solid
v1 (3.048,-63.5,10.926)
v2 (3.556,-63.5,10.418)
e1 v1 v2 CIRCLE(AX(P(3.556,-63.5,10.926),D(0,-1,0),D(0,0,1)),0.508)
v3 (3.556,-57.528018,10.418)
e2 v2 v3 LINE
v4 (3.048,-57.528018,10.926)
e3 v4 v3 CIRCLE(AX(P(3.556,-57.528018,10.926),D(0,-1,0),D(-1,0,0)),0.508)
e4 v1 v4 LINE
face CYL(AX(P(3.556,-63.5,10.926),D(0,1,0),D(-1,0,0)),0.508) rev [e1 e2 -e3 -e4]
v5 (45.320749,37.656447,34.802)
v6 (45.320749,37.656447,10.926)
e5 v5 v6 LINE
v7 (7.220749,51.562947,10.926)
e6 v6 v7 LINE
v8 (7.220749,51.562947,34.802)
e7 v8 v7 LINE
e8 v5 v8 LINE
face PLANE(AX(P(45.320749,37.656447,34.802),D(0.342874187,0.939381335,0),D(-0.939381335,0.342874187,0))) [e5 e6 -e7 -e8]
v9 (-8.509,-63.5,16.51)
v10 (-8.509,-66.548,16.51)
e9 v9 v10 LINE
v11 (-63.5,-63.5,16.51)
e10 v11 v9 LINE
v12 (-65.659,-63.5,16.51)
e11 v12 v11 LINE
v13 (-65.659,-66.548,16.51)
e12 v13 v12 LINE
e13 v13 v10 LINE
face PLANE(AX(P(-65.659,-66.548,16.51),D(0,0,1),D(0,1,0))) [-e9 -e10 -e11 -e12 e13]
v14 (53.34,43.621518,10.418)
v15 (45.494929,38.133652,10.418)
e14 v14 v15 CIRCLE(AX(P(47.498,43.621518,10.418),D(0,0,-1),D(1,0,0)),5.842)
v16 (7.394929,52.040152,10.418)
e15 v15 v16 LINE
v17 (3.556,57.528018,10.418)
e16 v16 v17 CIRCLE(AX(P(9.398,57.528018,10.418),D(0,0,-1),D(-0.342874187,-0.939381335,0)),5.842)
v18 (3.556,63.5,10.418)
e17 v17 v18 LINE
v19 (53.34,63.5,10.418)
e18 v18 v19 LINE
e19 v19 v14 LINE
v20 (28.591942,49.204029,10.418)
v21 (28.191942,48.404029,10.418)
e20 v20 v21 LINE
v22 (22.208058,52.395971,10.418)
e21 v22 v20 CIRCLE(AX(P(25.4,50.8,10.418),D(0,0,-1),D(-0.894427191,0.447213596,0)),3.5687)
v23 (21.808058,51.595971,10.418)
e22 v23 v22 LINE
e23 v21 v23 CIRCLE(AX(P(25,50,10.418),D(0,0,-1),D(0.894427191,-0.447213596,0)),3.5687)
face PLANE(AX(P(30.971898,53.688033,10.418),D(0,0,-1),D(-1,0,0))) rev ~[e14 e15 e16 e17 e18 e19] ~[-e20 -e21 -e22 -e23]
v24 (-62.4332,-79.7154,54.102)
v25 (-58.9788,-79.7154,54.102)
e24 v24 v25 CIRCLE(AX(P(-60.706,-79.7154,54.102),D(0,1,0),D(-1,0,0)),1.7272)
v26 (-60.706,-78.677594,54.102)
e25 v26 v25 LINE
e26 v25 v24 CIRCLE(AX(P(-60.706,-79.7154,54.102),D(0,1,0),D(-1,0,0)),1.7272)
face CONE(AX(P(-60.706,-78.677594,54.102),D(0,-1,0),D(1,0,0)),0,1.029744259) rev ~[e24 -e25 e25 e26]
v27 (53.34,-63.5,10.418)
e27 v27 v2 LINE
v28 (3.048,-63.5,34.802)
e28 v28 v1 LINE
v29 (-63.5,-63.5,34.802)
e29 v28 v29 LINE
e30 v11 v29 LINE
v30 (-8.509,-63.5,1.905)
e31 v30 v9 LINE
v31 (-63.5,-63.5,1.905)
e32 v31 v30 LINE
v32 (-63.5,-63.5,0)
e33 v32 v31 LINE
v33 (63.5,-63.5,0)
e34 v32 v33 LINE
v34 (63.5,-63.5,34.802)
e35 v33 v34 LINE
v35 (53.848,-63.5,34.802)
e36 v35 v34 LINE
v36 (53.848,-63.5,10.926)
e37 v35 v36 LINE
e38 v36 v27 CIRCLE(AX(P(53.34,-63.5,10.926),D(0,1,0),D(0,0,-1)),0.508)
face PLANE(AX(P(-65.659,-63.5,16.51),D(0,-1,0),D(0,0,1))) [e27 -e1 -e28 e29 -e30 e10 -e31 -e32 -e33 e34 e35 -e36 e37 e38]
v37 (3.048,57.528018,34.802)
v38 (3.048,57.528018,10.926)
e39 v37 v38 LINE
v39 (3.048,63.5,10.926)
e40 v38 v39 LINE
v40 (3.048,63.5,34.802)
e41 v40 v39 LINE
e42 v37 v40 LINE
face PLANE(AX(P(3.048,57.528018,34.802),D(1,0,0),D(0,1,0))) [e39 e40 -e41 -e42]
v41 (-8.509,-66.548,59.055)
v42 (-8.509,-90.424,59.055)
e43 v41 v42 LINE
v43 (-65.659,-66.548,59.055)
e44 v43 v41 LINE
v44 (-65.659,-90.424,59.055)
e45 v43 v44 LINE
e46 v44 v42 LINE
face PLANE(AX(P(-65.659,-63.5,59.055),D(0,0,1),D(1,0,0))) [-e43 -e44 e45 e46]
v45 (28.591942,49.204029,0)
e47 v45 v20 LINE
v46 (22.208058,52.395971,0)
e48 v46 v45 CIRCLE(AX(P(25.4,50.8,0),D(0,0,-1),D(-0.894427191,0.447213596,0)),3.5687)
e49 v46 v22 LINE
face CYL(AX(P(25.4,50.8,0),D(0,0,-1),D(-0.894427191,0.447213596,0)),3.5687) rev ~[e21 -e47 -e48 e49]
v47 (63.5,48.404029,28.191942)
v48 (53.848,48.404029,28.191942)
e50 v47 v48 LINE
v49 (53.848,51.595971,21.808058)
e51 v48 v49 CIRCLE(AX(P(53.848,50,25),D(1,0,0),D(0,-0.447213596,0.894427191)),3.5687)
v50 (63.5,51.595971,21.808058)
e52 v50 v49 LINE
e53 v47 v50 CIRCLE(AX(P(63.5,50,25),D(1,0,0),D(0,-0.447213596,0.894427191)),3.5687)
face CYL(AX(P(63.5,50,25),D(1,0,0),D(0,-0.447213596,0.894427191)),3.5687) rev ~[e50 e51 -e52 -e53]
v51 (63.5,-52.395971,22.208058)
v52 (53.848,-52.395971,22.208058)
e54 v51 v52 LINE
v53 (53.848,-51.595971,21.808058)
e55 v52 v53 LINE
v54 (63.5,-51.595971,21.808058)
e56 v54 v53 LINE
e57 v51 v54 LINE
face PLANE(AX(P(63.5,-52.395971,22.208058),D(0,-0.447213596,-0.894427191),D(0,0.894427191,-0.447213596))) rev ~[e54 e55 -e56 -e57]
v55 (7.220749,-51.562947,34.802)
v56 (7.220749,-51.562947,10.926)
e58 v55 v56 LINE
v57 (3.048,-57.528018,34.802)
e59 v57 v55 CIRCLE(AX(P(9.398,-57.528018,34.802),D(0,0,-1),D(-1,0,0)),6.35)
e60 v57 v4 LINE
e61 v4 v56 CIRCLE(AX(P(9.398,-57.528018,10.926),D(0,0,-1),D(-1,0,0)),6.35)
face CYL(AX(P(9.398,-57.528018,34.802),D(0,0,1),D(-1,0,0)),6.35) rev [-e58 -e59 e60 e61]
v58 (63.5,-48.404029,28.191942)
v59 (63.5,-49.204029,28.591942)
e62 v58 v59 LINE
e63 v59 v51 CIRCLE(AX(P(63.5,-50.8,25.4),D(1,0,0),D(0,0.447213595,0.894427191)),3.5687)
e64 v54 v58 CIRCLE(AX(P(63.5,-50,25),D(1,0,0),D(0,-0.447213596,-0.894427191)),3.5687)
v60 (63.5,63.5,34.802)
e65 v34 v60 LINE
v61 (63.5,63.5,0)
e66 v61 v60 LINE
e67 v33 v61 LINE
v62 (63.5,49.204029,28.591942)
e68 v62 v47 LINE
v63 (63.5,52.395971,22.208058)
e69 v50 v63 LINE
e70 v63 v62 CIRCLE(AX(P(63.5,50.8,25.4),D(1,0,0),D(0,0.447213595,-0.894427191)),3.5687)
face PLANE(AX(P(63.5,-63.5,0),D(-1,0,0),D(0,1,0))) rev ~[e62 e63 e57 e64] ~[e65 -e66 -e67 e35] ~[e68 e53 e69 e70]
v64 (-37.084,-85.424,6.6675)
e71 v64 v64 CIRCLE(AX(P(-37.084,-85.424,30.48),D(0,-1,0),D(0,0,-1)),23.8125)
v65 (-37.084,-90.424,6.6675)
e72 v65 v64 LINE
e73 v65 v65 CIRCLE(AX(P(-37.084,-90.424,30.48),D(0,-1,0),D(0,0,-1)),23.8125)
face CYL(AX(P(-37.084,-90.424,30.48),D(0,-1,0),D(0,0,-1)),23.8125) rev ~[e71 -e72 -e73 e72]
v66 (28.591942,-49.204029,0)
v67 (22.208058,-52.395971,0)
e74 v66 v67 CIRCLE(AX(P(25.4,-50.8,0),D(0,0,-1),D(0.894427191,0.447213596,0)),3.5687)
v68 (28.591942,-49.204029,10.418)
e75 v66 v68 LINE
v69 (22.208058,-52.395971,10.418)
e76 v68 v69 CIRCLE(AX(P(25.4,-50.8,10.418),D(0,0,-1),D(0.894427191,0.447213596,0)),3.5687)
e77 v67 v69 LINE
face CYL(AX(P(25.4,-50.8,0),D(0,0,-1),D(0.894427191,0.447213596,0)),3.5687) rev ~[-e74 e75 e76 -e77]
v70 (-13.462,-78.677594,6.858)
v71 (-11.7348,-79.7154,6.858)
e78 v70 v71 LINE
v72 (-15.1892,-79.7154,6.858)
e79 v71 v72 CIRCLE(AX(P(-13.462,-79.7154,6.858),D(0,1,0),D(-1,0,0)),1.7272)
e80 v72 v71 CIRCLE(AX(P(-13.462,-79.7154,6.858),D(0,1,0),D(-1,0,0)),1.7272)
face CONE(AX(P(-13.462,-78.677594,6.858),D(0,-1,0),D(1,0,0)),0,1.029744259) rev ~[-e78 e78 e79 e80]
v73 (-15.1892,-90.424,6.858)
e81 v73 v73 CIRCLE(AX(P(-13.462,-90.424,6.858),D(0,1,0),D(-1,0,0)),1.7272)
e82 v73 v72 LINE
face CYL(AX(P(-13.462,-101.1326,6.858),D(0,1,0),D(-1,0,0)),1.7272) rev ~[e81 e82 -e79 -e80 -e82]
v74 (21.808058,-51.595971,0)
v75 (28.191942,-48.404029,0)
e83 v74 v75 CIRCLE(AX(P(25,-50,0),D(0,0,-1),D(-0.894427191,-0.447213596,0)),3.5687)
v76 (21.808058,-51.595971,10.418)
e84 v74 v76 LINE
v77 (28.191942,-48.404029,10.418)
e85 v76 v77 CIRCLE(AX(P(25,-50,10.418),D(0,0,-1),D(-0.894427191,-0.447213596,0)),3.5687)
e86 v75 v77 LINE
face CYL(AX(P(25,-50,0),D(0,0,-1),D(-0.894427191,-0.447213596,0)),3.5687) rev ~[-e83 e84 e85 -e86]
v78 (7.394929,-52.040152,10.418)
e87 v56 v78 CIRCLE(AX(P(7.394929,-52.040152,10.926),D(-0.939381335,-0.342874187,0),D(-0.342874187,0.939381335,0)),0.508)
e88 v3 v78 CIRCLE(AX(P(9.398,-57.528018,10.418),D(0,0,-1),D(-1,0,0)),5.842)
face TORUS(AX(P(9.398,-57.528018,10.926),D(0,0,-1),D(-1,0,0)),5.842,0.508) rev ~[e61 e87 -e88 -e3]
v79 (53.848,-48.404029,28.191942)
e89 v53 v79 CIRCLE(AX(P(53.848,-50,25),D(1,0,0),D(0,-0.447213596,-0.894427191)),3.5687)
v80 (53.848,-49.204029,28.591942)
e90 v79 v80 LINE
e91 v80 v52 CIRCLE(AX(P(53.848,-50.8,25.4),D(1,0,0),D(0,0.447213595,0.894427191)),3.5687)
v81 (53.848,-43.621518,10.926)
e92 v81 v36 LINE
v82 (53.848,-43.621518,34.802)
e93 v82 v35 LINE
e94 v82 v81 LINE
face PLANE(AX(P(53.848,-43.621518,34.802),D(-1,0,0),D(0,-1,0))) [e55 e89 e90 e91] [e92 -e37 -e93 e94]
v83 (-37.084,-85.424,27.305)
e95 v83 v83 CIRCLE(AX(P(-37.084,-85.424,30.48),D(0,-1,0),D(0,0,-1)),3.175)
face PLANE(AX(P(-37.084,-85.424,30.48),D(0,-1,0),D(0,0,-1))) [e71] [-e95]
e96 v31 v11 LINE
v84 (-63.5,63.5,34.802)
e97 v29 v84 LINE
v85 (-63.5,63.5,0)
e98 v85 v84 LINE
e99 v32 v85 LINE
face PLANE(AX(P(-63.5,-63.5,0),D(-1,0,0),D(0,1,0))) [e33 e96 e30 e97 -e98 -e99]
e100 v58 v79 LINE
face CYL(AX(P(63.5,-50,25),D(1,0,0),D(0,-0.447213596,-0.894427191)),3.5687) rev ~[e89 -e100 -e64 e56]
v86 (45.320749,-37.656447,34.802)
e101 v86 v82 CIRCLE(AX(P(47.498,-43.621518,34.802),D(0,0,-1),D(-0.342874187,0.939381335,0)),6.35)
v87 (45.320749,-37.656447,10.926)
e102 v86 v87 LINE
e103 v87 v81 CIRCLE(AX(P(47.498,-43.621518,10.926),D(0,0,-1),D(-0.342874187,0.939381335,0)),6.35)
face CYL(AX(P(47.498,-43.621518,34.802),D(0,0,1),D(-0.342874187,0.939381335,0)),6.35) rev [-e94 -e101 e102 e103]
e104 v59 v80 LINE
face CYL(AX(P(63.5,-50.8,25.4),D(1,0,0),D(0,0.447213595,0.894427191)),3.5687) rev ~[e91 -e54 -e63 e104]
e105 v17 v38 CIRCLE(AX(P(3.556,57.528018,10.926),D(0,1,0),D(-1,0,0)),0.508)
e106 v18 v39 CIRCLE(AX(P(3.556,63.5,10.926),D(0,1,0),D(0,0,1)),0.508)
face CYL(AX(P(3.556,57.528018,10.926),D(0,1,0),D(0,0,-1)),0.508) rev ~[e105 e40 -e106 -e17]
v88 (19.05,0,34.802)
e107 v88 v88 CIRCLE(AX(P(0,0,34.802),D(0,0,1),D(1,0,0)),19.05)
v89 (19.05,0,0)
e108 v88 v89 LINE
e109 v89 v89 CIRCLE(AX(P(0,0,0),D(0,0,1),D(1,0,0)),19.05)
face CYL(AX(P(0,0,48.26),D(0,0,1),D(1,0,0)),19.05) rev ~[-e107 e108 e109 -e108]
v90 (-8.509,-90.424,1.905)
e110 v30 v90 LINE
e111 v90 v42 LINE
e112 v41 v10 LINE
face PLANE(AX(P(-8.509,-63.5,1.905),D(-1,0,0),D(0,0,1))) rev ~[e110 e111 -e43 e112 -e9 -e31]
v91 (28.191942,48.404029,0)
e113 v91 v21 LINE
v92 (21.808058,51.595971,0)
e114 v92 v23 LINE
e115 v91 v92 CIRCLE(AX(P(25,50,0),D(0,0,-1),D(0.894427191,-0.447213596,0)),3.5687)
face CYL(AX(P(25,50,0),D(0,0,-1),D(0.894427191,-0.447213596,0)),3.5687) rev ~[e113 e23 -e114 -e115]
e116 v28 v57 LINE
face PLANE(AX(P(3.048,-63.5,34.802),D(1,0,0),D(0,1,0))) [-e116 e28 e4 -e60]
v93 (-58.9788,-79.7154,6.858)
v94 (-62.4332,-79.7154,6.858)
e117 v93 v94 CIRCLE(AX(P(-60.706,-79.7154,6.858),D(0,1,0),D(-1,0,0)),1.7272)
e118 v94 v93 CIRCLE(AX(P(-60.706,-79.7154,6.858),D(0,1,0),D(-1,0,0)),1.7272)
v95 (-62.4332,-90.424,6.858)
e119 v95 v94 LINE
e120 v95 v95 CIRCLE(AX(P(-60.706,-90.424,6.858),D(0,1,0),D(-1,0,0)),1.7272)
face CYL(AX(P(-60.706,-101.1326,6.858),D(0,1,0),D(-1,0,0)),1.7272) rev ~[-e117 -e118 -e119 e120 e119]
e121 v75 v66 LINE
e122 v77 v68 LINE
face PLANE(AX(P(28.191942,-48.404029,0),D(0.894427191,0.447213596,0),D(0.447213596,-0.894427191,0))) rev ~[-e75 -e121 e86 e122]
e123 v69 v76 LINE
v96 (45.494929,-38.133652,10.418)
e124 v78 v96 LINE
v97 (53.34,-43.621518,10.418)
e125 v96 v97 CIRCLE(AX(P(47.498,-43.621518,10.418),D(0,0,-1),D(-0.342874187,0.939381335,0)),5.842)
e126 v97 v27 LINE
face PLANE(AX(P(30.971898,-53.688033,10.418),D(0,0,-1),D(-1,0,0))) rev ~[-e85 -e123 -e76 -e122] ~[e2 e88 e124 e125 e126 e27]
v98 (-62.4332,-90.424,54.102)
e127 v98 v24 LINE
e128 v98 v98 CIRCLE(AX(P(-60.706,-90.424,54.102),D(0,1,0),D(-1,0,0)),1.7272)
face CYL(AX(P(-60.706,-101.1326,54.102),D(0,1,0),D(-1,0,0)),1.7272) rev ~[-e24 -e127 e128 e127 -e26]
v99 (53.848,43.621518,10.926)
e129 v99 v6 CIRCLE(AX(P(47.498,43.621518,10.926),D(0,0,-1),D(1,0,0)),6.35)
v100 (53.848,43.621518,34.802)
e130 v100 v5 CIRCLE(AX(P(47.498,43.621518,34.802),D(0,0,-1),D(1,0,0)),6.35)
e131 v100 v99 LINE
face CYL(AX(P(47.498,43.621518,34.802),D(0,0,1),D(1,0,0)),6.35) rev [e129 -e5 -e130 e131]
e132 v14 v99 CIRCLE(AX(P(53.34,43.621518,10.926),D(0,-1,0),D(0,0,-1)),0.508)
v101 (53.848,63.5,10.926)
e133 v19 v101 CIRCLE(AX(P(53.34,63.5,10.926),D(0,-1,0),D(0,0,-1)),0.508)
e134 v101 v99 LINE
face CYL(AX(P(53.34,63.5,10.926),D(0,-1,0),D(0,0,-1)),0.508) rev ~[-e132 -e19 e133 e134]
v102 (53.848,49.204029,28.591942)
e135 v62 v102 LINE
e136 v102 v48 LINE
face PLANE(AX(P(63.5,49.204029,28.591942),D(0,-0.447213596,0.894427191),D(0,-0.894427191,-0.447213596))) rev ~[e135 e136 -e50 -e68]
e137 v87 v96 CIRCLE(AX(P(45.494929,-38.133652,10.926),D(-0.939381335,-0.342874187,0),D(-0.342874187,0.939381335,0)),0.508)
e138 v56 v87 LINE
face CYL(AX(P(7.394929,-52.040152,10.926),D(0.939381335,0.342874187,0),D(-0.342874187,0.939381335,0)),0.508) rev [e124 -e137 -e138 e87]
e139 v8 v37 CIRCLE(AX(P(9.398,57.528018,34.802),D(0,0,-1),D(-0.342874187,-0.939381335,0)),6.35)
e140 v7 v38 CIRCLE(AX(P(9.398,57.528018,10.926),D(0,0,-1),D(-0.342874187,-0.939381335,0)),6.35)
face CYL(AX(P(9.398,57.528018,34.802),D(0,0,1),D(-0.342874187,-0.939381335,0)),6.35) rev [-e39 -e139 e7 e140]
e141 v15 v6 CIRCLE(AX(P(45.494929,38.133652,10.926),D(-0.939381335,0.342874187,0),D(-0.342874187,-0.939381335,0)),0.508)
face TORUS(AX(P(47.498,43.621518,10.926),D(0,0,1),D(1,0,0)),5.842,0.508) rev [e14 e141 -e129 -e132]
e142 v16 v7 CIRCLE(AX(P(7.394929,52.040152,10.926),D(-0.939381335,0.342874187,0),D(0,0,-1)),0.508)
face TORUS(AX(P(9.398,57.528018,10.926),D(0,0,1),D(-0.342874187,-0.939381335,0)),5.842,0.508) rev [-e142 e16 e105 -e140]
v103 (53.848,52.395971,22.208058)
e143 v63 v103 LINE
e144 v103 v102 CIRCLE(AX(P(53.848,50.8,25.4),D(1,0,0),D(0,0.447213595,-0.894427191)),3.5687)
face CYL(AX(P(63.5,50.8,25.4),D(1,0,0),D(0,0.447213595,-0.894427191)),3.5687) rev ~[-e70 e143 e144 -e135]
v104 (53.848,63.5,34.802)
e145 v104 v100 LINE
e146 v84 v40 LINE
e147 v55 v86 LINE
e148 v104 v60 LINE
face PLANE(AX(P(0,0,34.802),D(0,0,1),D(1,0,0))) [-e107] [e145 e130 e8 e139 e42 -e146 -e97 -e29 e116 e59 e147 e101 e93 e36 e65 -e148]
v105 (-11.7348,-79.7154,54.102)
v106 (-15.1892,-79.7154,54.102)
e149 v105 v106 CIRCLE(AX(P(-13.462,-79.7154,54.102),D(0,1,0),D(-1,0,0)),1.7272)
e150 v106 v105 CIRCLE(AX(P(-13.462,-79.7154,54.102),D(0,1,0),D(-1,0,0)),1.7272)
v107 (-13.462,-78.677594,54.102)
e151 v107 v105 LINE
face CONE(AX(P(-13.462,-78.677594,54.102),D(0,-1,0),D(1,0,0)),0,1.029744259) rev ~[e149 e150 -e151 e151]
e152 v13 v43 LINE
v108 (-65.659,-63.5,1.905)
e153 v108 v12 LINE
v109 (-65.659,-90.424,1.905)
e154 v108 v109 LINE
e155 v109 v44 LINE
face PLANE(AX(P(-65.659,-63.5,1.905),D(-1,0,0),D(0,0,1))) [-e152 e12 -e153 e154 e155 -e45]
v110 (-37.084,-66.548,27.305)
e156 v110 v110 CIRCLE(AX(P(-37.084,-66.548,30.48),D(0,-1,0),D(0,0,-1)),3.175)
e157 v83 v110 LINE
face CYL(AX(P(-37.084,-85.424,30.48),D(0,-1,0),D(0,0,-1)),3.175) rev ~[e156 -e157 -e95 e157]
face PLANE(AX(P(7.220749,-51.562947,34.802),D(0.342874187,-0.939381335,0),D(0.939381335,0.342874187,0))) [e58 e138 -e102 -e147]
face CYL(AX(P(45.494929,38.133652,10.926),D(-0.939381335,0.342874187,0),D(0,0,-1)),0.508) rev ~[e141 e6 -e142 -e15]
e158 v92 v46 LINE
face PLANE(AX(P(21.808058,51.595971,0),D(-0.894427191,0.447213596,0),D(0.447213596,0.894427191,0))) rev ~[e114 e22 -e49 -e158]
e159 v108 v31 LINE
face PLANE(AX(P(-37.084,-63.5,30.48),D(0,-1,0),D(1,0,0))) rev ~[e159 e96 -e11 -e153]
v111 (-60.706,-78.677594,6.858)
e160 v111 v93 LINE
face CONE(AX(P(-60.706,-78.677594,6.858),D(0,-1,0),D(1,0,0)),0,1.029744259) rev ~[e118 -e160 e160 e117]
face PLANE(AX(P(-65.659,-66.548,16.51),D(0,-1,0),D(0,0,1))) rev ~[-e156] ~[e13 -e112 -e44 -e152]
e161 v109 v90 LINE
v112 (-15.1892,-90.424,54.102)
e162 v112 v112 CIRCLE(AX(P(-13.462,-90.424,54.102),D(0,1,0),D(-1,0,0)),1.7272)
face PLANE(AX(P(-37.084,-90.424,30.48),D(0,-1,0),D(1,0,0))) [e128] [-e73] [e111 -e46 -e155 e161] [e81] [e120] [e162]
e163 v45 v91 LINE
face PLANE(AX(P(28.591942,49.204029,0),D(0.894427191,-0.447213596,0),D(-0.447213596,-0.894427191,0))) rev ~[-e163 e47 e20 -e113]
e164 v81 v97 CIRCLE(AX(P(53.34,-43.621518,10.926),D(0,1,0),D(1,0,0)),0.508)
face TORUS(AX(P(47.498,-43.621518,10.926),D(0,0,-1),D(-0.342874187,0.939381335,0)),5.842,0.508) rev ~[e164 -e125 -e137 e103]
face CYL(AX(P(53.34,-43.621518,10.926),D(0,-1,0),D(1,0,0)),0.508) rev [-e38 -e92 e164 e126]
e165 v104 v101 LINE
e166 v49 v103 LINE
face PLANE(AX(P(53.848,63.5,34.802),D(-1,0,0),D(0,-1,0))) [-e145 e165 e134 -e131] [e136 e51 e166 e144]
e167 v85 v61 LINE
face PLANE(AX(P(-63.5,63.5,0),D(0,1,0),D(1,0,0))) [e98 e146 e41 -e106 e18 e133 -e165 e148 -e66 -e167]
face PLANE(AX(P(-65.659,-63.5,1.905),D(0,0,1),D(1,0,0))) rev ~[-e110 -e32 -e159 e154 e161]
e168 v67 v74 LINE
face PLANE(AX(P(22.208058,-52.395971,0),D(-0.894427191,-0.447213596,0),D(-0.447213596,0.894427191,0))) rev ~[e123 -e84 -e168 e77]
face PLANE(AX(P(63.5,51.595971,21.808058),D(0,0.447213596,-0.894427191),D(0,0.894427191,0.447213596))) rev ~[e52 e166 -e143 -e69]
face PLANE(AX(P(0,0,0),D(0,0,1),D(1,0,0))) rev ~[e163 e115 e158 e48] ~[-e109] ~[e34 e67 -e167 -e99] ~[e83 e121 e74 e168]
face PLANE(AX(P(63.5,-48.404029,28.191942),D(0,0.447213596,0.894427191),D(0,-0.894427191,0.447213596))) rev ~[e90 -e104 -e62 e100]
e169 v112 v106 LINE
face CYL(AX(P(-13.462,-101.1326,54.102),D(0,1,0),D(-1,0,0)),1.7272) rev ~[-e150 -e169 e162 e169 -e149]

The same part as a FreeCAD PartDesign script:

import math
import FreeCAD as App
import Part
import Sketcher
Q = App.Units.Quantity


def edges_at(feature, points):
    """Names of the edges that pass closest to the given points."""
    edges = feature.Shape.Edges
    near = lambda p: min(range(len(edges)), key=lambda i: edges[i].distToShape(Part.Vertex(*p))[0])
    return sorted({f"Edge{near(p) + 1}" for p in points})

doc = App.newDocument("Part")
body = doc.addObject("PartDesign::Body", "Body")

sketch1 = doc.addObject("Sketcher::SketchObject", "Sketch")
body.addObject(sketch1)
sketch1.AttachmentSupport = (doc.XY_Plane, [""])
sketch1.MapMode = "FlatFace"
sketch1.addGeometry(Part.LineSegment(App.Vector(-63.5, 63.5, 0), App.Vector(-63.5, -63.5, 0)), False)
sketch1.addGeometry(Part.LineSegment(App.Vector(-63.5, -63.5, 0), App.Vector(63.5, -63.5, 0)), False)
sketch1.addGeometry(Part.LineSegment(App.Vector(63.5, -63.5, 0), App.Vector(63.5, 63.5, 0)), False)
sketch1.addGeometry(Part.LineSegment(App.Vector(63.5, 63.5, 0), App.Vector(-63.5, 63.5, 0)), False)
sketch1.addConstraint(Sketcher.Constraint("Coincident", 0, 2, 1, 1))
sketch1.addConstraint(Sketcher.Constraint("Coincident", 1, 2, 2, 1))
sketch1.addConstraint(Sketcher.Constraint("Coincident", 2, 2, 3, 1))
sketch1.addConstraint(Sketcher.Constraint("Coincident", 3, 2, 0, 1))
sketch1.addConstraint(Sketcher.Constraint("Vertical", 0))
sketch1.addConstraint(Sketcher.Constraint("Horizontal", 1))
sketch1.addConstraint(Sketcher.Constraint("Vertical", 2))
sketch1.addConstraint(Sketcher.Constraint("Horizontal", 3))
sketch1.addConstraint(Sketcher.Constraint("Symmetric", 0, 2, 2, 2, -1, 1))
sketch1.addConstraint(Sketcher.Constraint("Equal", 3, 0))
sketch1.addConstraint(Sketcher.Constraint("DistanceX", 1, 1, 1, 2, Q("5 in")))
pad1 = doc.addObject("PartDesign::Pad", "Pad")
body.addObject(pad1)
pad1.Profile = sketch1
pad1.Length = 39.5

sketch2 = doc.addObject("Sketcher::SketchObject", "Sketch001")
body.addObject(sketch2)
sketch2.AttachmentSupport = (doc.XY_Plane, [""])
sketch2.MapMode = "FlatFace"
sketch2.AttachmentOffset = App.Placement(App.Vector(0, 0, 39.5), App.Rotation())
sketch2.addGeometry(Part.LineSegment(App.Vector(-82.89, 82.89, 0), App.Vector(-82.89, -82.89, 0)), False)
sketch2.addGeometry(Part.LineSegment(App.Vector(-82.89, -82.89, 0), App.Vector(82.89, -82.89, 0)), False)
sketch2.addGeometry(Part.LineSegment(App.Vector(82.89, -82.89, 0), App.Vector(82.89, 82.89, 0)), False)
sketch2.addGeometry(Part.LineSegment(App.Vector(82.89, 82.89, 0), App.Vector(-82.89, 82.89, 0)), False)
sketch2.addGeometry(Part.Circle(App.Vector(0, 0, 0), App.Vector(0, 0, 1), 45.974), False)
sketch2.addConstraint(Sketcher.Constraint("Coincident", 0, 2, 1, 1))
sketch2.addConstraint(Sketcher.Constraint("Coincident", 1, 2, 2, 1))
sketch2.addConstraint(Sketcher.Constraint("Coincident", 2, 2, 3, 1))
sketch2.addConstraint(Sketcher.Constraint("Coincident", 3, 2, 0, 1))
sketch2.addConstraint(Sketcher.Constraint("Vertical", 0))
sketch2.addConstraint(Sketcher.Constraint("Horizontal", 1))
sketch2.addConstraint(Sketcher.Constraint("Vertical", 2))
sketch2.addConstraint(Sketcher.Constraint("Horizontal", 3))
sketch2.addConstraint(Sketcher.Constraint("Coincident", 4, 3, -1, 1))
sketch2.addConstraint(Sketcher.Constraint("Symmetric", 0, 2, 2, 2, -1, 1))
sketch2.addConstraint(Sketcher.Constraint("Equal", 3, 0))
sketch2.addConstraint(Sketcher.Constraint("Diameter", 4, Q("3.62 in")))
sketch2.addConstraint(Sketcher.Constraint("DistanceX", 1, 1, 1, 2, 165.78))
pocket1 = doc.addObject("PartDesign::Pocket", "Pocket")
body.addObject(pocket1)
pocket1.Profile = sketch2
pocket1.Length = 4.698

sketch3 = doc.addObject("Sketcher::SketchObject", "Sketch002")
body.addObject(sketch3)
sketch3.AttachmentSupport = (doc.XY_Plane, [""])
sketch3.MapMode = "FlatFace"
sketch3.AttachmentOffset = App.Placement(App.Vector(0, 0, 34.802), App.Rotation())
sketch3.addGeometry(Part.LineSegment(App.Vector(3.048, -57.528018, 0), App.Vector(3.048, -63.5, 0)), False)
sketch3.addGeometry(Part.LineSegment(App.Vector(3.048, -63.5, 0), App.Vector(53.848, -63.5, 0)), False)
sketch3.addGeometry(Part.LineSegment(App.Vector(53.848, -63.5, 0), App.Vector(53.848, -43.621518, 0)), False)
sketch3.addGeometry(Part.ArcOfCircle(Part.Circle(App.Vector(47.498, -43.621518, 0), App.Vector(0, 0, 1), 6.35), math.radians(0), math.radians(110.052082)), False)
sketch3.addGeometry(Part.LineSegment(App.Vector(45.320749, -37.656447, 0), App.Vector(7.220749, -51.562947, 0)), False)
sketch3.addGeometry(Part.ArcOfCircle(Part.Circle(App.Vector(9.398, -57.528018, 0), App.Vector(0, 0, 1), 6.35), math.radians(110.052082), math.radians(180)), False)
sketch3.addGeometry(Part.LineSegment(App.Vector(53.848, 63.5, 0), App.Vector(3.048, 63.5, 0)), False)
sketch3.addGeometry(Part.LineSegment(App.Vector(3.048, 63.5, 0), App.Vector(3.048, 57.528018, 0)), False)
sketch3.addGeometry(Part.ArcOfCircle(Part.Circle(App.Vector(9.398, 57.528018, 0), App.Vector(0, 0, 1), 6.35), math.radians(180), math.radians(249.947918)), False)
sketch3.addGeometry(Part.LineSegment(App.Vector(7.220749, 51.562947, 0), App.Vector(45.320749, 37.656447, 0)), False)
sketch3.addGeometry(Part.ArcOfCircle(Part.Circle(App.Vector(47.498, 43.621518, 0), App.Vector(0, 0, 1), 6.35), math.radians(-110.052082), math.radians(0)), False)
sketch3.addGeometry(Part.LineSegment(App.Vector(53.848, 43.621518, 0), App.Vector(53.848, 63.5, 0)), False)
sketch3.addConstraint(Sketcher.Constraint("Coincident", 0, 2, 1, 1))
sketch3.addConstraint(Sketcher.Constraint("Coincident", 1, 2, 2, 1))
sketch3.addConstraint(Sketcher.Constraint("Tangent", 2, 2, 3, 1))
sketch3.addConstraint(Sketcher.Constraint("Tangent", 3, 2, 4, 1))
sketch3.addConstraint(Sketcher.Constraint("Tangent", 4, 2, 5, 1))
sketch3.addConstraint(Sketcher.Constraint("Tangent", 5, 2, 0, 1))
sketch3.addConstraint(Sketcher.Constraint("Coincident", 6, 2, 7, 1))
sketch3.addConstraint(Sketcher.Constraint("Tangent", 7, 2, 8, 1))
sketch3.addConstraint(Sketcher.Constraint("Tangent", 8, 2, 9, 1))
sketch3.addConstraint(Sketcher.Constraint("Tangent", 9, 2, 10, 1))
sketch3.addConstraint(Sketcher.Constraint("Tangent", 10, 2, 11, 1))
sketch3.addConstraint(Sketcher.Constraint("Coincident", 11, 2, 6, 1))
sketch3.addConstraint(Sketcher.Constraint("Vertical", 0))
sketch3.addConstraint(Sketcher.Constraint("Horizontal", 1))
sketch3.addConstraint(Sketcher.Constraint("Vertical", 2))
sketch3.addConstraint(Sketcher.Constraint("Horizontal", 6))
sketch3.addConstraint(Sketcher.Constraint("Vertical", 7))
sketch3.addConstraint(Sketcher.Constraint("Vertical", 11))
sketch3.addConstraint(Sketcher.Constraint("Equal", 3, 5))
sketch3.addConstraint(Sketcher.Constraint("Equal", 5, 8))
sketch3.addConstraint(Sketcher.Constraint("Equal", 8, 10))
sketch3.addConstraint(Sketcher.Constraint("Symmetric", 5, 3, 8, 3, -1))
sketch3.addConstraint(Sketcher.Constraint("Symmetric", 3, 3, 10, 3, -1))
sketch3.addConstraint(Sketcher.Constraint("Equal", 0, 7))
sketch3.addConstraint(Sketcher.Constraint("DistanceX", 1, 1, 1, 2, Q("2 in")))
sketch3.addConstraint(Sketcher.Constraint("Radius", 3, Q("0.25 in")))
sketch3.addConstraint(Sketcher.Constraint("DistanceY", 0, 2, -1, 1, Q("2.5 in")))
sketch3.addConstraint(Sketcher.Constraint("DistanceX", -1, 1, 3, 3, Q("1.87 in")))
sketch3.addConstraint(Sketcher.Constraint("DistanceY", 5, 3, 3, 3, Q("0.5475 in")))
sketch3.addConstraint(Sketcher.Constraint("DistanceY", 0, 2, 0, 1, 5.971982))
pocket2 = doc.addObject("PartDesign::Pocket", "Pocket001")
body.addObject(pocket2)
pocket2.Profile = sketch3
pocket2.Length = Q("0.96 in")

sketch4 = doc.addObject("Sketcher::SketchObject", "Sketch003")
body.addObject(sketch4)
sketch4.AttachmentSupport = (doc.YZ_Plane, [""])
sketch4.MapMode = "FlatFace"
sketch4.AttachmentOffset = App.Placement(App.Vector(0, 0, 2.5 * 25.4), App.Rotation())
sketch4.addGeometry(Part.LineSegment(App.Vector(51.595971, 21.808058, 0), App.Vector(52.395971, 22.208058, 0)), False)
sketch4.addGeometry(Part.ArcOfCircle(Part.Circle(App.Vector(50.8, 25.4, 0), App.Vector(0, 0, 1), 3.5687), math.radians(-63.434949), math.radians(116.565051)), False)
sketch4.addGeometry(Part.LineSegment(App.Vector(49.204029, 28.591942, 0), App.Vector(48.404029, 28.191942, 0)), False)
sketch4.addGeometry(Part.ArcOfCircle(Part.Circle(App.Vector(50, 25, 0), App.Vector(0, 0, 1), 3.5687), math.radians(116.565051), math.radians(296.565051)), False)
sketch4.addConstraint(Sketcher.Constraint("Tangent", 0, 2, 1, 1))
sketch4.addConstraint(Sketcher.Constraint("Tangent", 1, 2, 2, 1))
sketch4.addConstraint(Sketcher.Constraint("Tangent", 2, 2, 3, 1))
sketch4.addConstraint(Sketcher.Constraint("Tangent", 3, 2, 0, 1))
sketch4.addConstraint(Sketcher.Constraint("Equal", 1, 3))
sketch4.addConstraint(Sketcher.Constraint("DistanceX", -1, 1, 1, 3, Q("2 in")))
sketch4.addConstraint(Sketcher.Constraint("DistanceY", -1, 1, 1, 3, Q("1 in")))
sketch4.addConstraint(Sketcher.Constraint("Radius", 1, Q("0.1405 in")))
sketch4.addConstraint(Sketcher.Constraint("DistanceX", -1, 1, 3, 3, 50.0))
sketch4.addConstraint(Sketcher.Constraint("DistanceY", -1, 1, 3, 3, 25.0))
pocket3 = doc.addObject("PartDesign::Pocket", "Pocket002")
body.addObject(pocket3)
pocket3.Profile = sketch4
pocket3.Type = "UpToFirst"

sketch5 = doc.addObject("Sketcher::SketchObject", "Sketch004")
body.addObject(sketch5)
sketch5.AttachmentSupport = (doc.YZ_Plane, [""])
sketch5.MapMode = "FlatFace"
sketch5.AttachmentOffset = App.Placement(App.Vector(0, 0, 2.5 * 25.4), App.Rotation())
sketch5.addGeometry(Part.LineSegment(App.Vector(-48.404029, 28.191942, 0), App.Vector(-49.204029, 28.591942, 0)), False)
sketch5.addGeometry(Part.ArcOfCircle(Part.Circle(App.Vector(-50.8, 25.4, 0), App.Vector(0, 0, 1), 3.5687), math.radians(63.434949), math.radians(243.434949)), False)
sketch5.addGeometry(Part.LineSegment(App.Vector(-52.395971, 22.208058, 0), App.Vector(-51.595971, 21.808058, 0)), False)
sketch5.addGeometry(Part.ArcOfCircle(Part.Circle(App.Vector(-50, 25, 0), App.Vector(0, 0, 1), 3.5687), math.radians(-116.565051), math.radians(63.434949)), False)
sketch5.addConstraint(Sketcher.Constraint("Tangent", 0, 2, 1, 1))
sketch5.addConstraint(Sketcher.Constraint("Tangent", 1, 2, 2, 1))
sketch5.addConstraint(Sketcher.Constraint("Tangent", 2, 2, 3, 1))
sketch5.addConstraint(Sketcher.Constraint("Tangent", 3, 2, 0, 1))
sketch5.addConstraint(Sketcher.Constraint("Equal", 1, 3))
sketch5.addConstraint(Sketcher.Constraint("DistanceX", 1, 3, -1, 1, Q("2 in")))
sketch5.addConstraint(Sketcher.Constraint("DistanceY", -1, 1, 1, 3, Q("1 in")))
sketch5.addConstraint(Sketcher.Constraint("Radius", 1, Q("0.1405 in")))
sketch5.addConstraint(Sketcher.Constraint("DistanceX", 3, 3, -1, 1, 50.0))
sketch5.addConstraint(Sketcher.Constraint("DistanceY", -1, 1, 3, 3, 25.0))
pocket4 = doc.addObject("PartDesign::Pocket", "Pocket003")
body.addObject(pocket4)
pocket4.Profile = sketch5
pocket4.Type = "UpToFirst"

sketch6 = doc.addObject("Sketcher::SketchObject", "Sketch005")
body.addObject(sketch6)
sketch6.AttachmentSupport = (doc.XY_Plane, [""])
sketch6.MapMode = "FlatFace"
sketch6.addGeometry(Part.LineSegment(App.Vector(21.808058, 51.595971, 0), App.Vector(22.208058, 52.395971, 0)), False)
sketch6.addGeometry(Part.ArcOfCircle(Part.Circle(App.Vector(25.4, 50.8, 0), App.Vector(0, 0, 1), 3.5687), math.radians(-26.565051), math.radians(153.434949)), False)
sketch6.addGeometry(Part.LineSegment(App.Vector(28.591942, 49.204029, 0), App.Vector(28.191942, 48.404029, 0)), False)
sketch6.addGeometry(Part.ArcOfCircle(Part.Circle(App.Vector(25, 50, 0), App.Vector(0, 0, 1), 3.5687), math.radians(153.434949), math.radians(333.434949)), False)
sketch6.addGeometry(Part.LineSegment(App.Vector(28.191942, -48.404029, 0), App.Vector(28.591942, -49.204029, 0)), False)
sketch6.addGeometry(Part.ArcOfCircle(Part.Circle(App.Vector(25.4, -50.8, 0), App.Vector(0, 0, 1), 3.5687), math.radians(-153.434949), math.radians(26.565051)), False)
sketch6.addGeometry(Part.LineSegment(App.Vector(22.208058, -52.395971, 0), App.Vector(21.808058, -51.595971, 0)), False)
sketch6.addGeometry(Part.ArcOfCircle(Part.Circle(App.Vector(25, -50, 0), App.Vector(0, 0, 1), 3.5687), math.radians(26.565051), math.radians(206.565051)), False)
sketch6.addConstraint(Sketcher.Constraint("Tangent", 0, 2, 1, 2))
sketch6.addConstraint(Sketcher.Constraint("Tangent", 1, 1, 2, 1))
sketch6.addConstraint(Sketcher.Constraint("Tangent", 2, 2, 3, 2))
sketch6.addConstraint(Sketcher.Constraint("Tangent", 3, 1, 0, 1))
sketch6.addConstraint(Sketcher.Constraint("Tangent", 4, 2, 5, 2))
sketch6.addConstraint(Sketcher.Constraint("Tangent", 5, 1, 6, 1))
sketch6.addConstraint(Sketcher.Constraint("Tangent", 6, 2, 7, 2))
sketch6.addConstraint(Sketcher.Constraint("Tangent", 7, 1, 4, 1))
sketch6.addConstraint(Sketcher.Constraint("Equal", 1, 3))
sketch6.addConstraint(Sketcher.Constraint("Equal", 3, 5))
sketch6.addConstraint(Sketcher.Constraint("Equal", 5, 7))
sketch6.addConstraint(Sketcher.Constraint("Symmetric", 1, 3, 5, 3, -1))
sketch6.addConstraint(Sketcher.Constraint("Symmetric", 3, 3, 7, 3, -1))
sketch6.addConstraint(Sketcher.Constraint("DistanceX", -1, 1, 1, 3, Q("1 in")))
sketch6.addConstraint(Sketcher.Constraint("DistanceY", -1, 1, 1, 3, Q("2 in")))
sketch6.addConstraint(Sketcher.Constraint("Radius", 1, Q("0.1405 in")))
sketch6.addConstraint(Sketcher.Constraint("DistanceX", -1, 1, 3, 3, 25.0))
sketch6.addConstraint(Sketcher.Constraint("DistanceY", -1, 1, 3, 3, 50.0))
pocket5 = doc.addObject("PartDesign::Pocket", "Pocket004")
body.addObject(pocket5)
pocket5.Profile = sketch6
pocket5.Type = "ThroughAll"
pocket5.Reversed = True
doc.recompute()

fillet = doc.addObject("PartDesign::Fillet", "Fillet")
body.addObject(fillet)
fillet.Base = (pocket5, edges_at(pocket5, [
    (3.048, -60.514, 10.418),
    (4.195, -53.888, 10.418),
    (26.271, -44.61, 10.418),
    (51.138, -38.418, 10.418),
    (53.848, -53.561, 10.418),
    (51.138, 38.418, 10.418),
    (26.271, 44.61, 10.418),
    (4.195, 53.888, 10.418),
    (3.048, 60.514, 10.418),
    (53.848, 53.561, 10.418),
]))
fillet.Radius = Q("0.02 in")

sketch7 = doc.addObject("Sketcher::SketchObject", "Sketch006")
body.addObject(sketch7)
sketch7.AttachmentSupport = (doc.XZ_Plane, [""])
sketch7.MapMode = "FlatFace"
sketch7.AttachmentOffset = App.Placement(App.Vector(0, 0, 2.5 * 25.4), App.Rotation())
sketch7.addGeometry(Part.LineSegment(App.Vector(-65.659, 59.055, 0), App.Vector(-65.659, 1.905, 0)), False)
sketch7.addGeometry(Part.LineSegment(App.Vector(-65.659, 1.905, 0), App.Vector(-8.509, 1.905, 0)), False)
sketch7.addGeometry(Part.LineSegment(App.Vector(-8.509, 1.905, 0), App.Vector(-8.509, 59.055, 0)), False)
sketch7.addGeometry(Part.LineSegment(App.Vector(-8.509, 59.055, 0), App.Vector(-65.659, 59.055, 0)), False)
sketch7.addConstraint(Sketcher.Constraint("Coincident", 0, 2, 1, 1))
sketch7.addConstraint(Sketcher.Constraint("Coincident", 1, 2, 2, 1))
sketch7.addConstraint(Sketcher.Constraint("Coincident", 2, 2, 3, 1))
sketch7.addConstraint(Sketcher.Constraint("Coincident", 3, 2, 0, 1))
sketch7.addConstraint(Sketcher.Constraint("Vertical", 0))
sketch7.addConstraint(Sketcher.Constraint("Horizontal", 1))
sketch7.addConstraint(Sketcher.Constraint("Vertical", 2))
sketch7.addConstraint(Sketcher.Constraint("Horizontal", 3))
sketch7.addConstraint(Sketcher.Constraint("Equal", 3, 0))
sketch7.addConstraint(Sketcher.Constraint("DistanceX", 1, 1, 1, 2, Q("2.25 in")))
sketch7.addConstraint(Sketcher.Constraint("DistanceX", 0, 2, -1, 1, Q("2.585 in")))
sketch7.addConstraint(Sketcher.Constraint("DistanceY", -1, 1, 0, 2, Q("0.075 in")))
pad2 = doc.addObject("PartDesign::Pad", "Pad001")
body.addObject(pad2)
pad2.Profile = sketch7
pad2.Length = Q("1.06 in")

sketch8 = doc.addObject("Sketcher::SketchObject", "Sketch007")
body.addObject(sketch8)
sketch8.AttachmentSupport = (doc.XZ_Plane, [""])
sketch8.MapMode = "FlatFace"
sketch8.AttachmentOffset = App.Placement(App.Vector(0, 0, 3.56 * 25.4), App.Rotation())
sketch8.addGeometry(Part.Circle(App.Vector(-37.084, 30.48, 0), App.Vector(0, 0, 1), 23.8125), False)
sketch8.addConstraint(Sketcher.Constraint("Diameter", 0, Q("1.875 in")))
sketch8.addConstraint(Sketcher.Constraint("DistanceY", -1, 1, 0, 3, Q("1.2 in")))
sketch8.addConstraint(Sketcher.Constraint("DistanceX", 0, 3, -1, 1, Q("1.46 in")))
pocket6 = doc.addObject("PartDesign::Pocket", "Pocket005")
body.addObject(pocket6)
pocket6.Profile = sketch8
pocket6.Length = 5

sketch9 = doc.addObject("Sketcher::SketchObject", "Sketch008")
body.addObject(sketch9)
sketch9.AttachmentSupport = (doc.XZ_Plane, [""])
sketch9.MapMode = "FlatFace"
sketch9.AttachmentOffset = App.Placement(App.Vector(0, 0, 85.424), App.Rotation())
sketch9.addGeometry(Part.Circle(App.Vector(-37.084, 30.48, 0), App.Vector(0, 0, 1), 3.175), False)
sketch9.addConstraint(Sketcher.Constraint("Diameter", 0, Q("0.25 in")))
sketch9.addConstraint(Sketcher.Constraint("DistanceY", -1, 1, 0, 3, Q("1.2 in")))
sketch9.addConstraint(Sketcher.Constraint("DistanceX", 0, 3, -1, 1, Q("1.46 in")))
pocket7 = doc.addObject("PartDesign::Pocket", "Pocket006")
body.addObject(pocket7)
pocket7.Profile = sketch9
pocket7.Length = 21.924

sketch10 = doc.addObject("Sketcher::SketchObject", "Sketch009")
body.addObject(sketch10)
sketch10.AttachmentSupport = (doc.YZ_Plane, [""])
sketch10.MapMode = "FlatFace"
sketch10.AttachmentOffset = App.Placement(App.Vector(0, 0, -2.585 * 25.4), App.Rotation())
sketch10.addGeometry(Part.LineSegment(App.Vector(-63.5, 16.51, 0), App.Vector(-66.548, 16.51, 0)), False)
sketch10.addGeometry(Part.LineSegment(App.Vector(-66.548, 16.51, 0), App.Vector(-66.548, 59.055, 0)), False)
sketch10.addGeometry(Part.LineSegment(App.Vector(-66.548, 59.055, 0), App.Vector(-63.5, 59.055, 0)), False)
sketch10.addGeometry(Part.LineSegment(App.Vector(-63.5, 59.055, 0), App.Vector(-63.5, 16.51, 0)), False)
sketch10.addConstraint(Sketcher.Constraint("Coincident", 0, 2, 1, 1))
sketch10.addConstraint(Sketcher.Constraint("Coincident", 1, 2, 2, 1))
sketch10.addConstraint(Sketcher.Constraint("Coincident", 2, 2, 3, 1))
sketch10.addConstraint(Sketcher.Constraint("Coincident", 3, 2, 0, 1))
sketch10.addConstraint(Sketcher.Constraint("Horizontal", 0))
sketch10.addConstraint(Sketcher.Constraint("Vertical", 1))
sketch10.addConstraint(Sketcher.Constraint("Horizontal", 2))
sketch10.addConstraint(Sketcher.Constraint("Vertical", 3))
sketch10.addConstraint(Sketcher.Constraint("DistanceX", 0, 2, 0, 1, Q("0.12 in")))
sketch10.addConstraint(Sketcher.Constraint("DistanceX", 2, 2, -1, 1, Q("2.5 in")))
sketch10.addConstraint(Sketcher.Constraint("DistanceY", 1, 1, 1, 2, Q("1.675 in")))
sketch10.addConstraint(Sketcher.Constraint("DistanceY", -1, 1, 0, 2, Q("0.65 in")))
pocket8 = doc.addObject("PartDesign::Pocket", "Pocket007")
body.addObject(pocket8)
pocket8.Profile = sketch10
pocket8.Type = "UpToFirst"
pocket8.Reversed = True

sketch11 = doc.addObject("Sketcher::SketchObject", "Sketch010")
body.addObject(sketch11)
sketch11.AttachmentSupport = (doc.XZ_Plane, [""])
sketch11.MapMode = "FlatFace"
sketch11.AttachmentOffset = App.Placement(App.Vector(0, 0, 3.56 * 25.4), App.Rotation())
sketch11.addGeometry(Part.Circle(App.Vector(-60.706, 6.858, 0), App.Vector(0, 0, 1), 1.7272), False)
sketch11.addGeometry(Part.Circle(App.Vector(-60.706, 54.102, 0), App.Vector(0, 0, 1), 1.7272), False)
sketch11.addGeometry(Part.Circle(App.Vector(-13.462, 54.102, 0), App.Vector(0, 0, 1), 1.7272), False)
sketch11.addGeometry(Part.Circle(App.Vector(-13.462, 6.858, 0), App.Vector(0, 0, 1), 1.7272), False)
sketch11.addConstraint(Sketcher.Constraint("Equal", 0, 1))
sketch11.addConstraint(Sketcher.Constraint("Equal", 1, 2))
sketch11.addConstraint(Sketcher.Constraint("Equal", 2, 3))
sketch11.addConstraint(Sketcher.Constraint("Horizontal", 1, 3, 2, 3))
sketch11.addConstraint(Sketcher.Constraint("Horizontal", 0, 3, 3, 3))
sketch11.addConstraint(Sketcher.Constraint("Vertical", 0, 3, 1, 3))
sketch11.addConstraint(Sketcher.Constraint("Vertical", 2, 3, 3, 3))
sketch11.addConstraint(Sketcher.Constraint("Diameter", 0, Q("0.136 in")))
sketch11.addConstraint(Sketcher.Constraint("DistanceX", 0, 3, -1, 1, Q("2.39 in")))
sketch11.addConstraint(Sketcher.Constraint("DistanceY", -1, 1, 0, 3, Q("0.27 in")))
sketch11.addConstraint(Sketcher.Constraint("DistanceY", -1, 1, 1, 3, Q("2.13 in")))
sketch11.addConstraint(Sketcher.Constraint("DistanceX", 2, 3, -1, 1, Q("0.53 in")))
doc.recompute()
hole = doc.addObject("PartDesign::Hole", "Hole")
body.addObject(hole)
hole.Profile = sketch11
hole.ThreadType = "None"
hole.Diameter = Q("0.136 in")
hole.DepthType = "Dimension"
hole.Depth = 10.7086
hole.DrillPoint = "Angled"
hole.DrillPointAngle = 118

sketch12 = doc.addObject("Sketcher::SketchObject", "Sketch011")
body.addObject(sketch12)
sketch12.AttachmentSupport = (doc.XY_Plane, [""])
sketch12.MapMode = "FlatFace"
sketch12.AttachmentOffset = App.Placement(App.Vector(0, 0, 39.5), App.Rotation())
sketch12.addGeometry(Part.Circle(App.Vector(0, 0, 0), App.Vector(0, 0, 1), 45.974), False)
sketch12.addConstraint(Sketcher.Constraint("Coincident", 0, 3, -1, 1))
sketch12.addConstraint(Sketcher.Constraint("Diameter", 0, Q("3.62 in")))
pocket9 = doc.addObject("PartDesign::Pocket", "Pocket008")
body.addObject(pocket9)
pocket9.Profile = sketch12
pocket9.Length = 4.698

sketch13 = doc.addObject("Sketcher::SketchObject", "Sketch012")
body.addObject(sketch13)
sketch13.AttachmentSupport = (doc.XY_Plane, [""])
sketch13.MapMode = "FlatFace"
sketch13.AttachmentOffset = App.Placement(App.Vector(0, 0, 1.9 * 25.4), App.Rotation())
sketch13.addGeometry(Part.Circle(App.Vector(0, 0, 0), App.Vector(0, 0, 1), 19.05), False)
sketch13.addConstraint(Sketcher.Constraint("Coincident", 0, 3, -1, 1))
sketch13.addConstraint(Sketcher.Constraint("Diameter", 0, Q("1.5 in")))
pocket10 = doc.addObject("PartDesign::Pocket", "Pocket009")
body.addObject(pocket10)
pocket10.Profile = sketch13
pocket10.Type = "ThroughAll"

doc.recompute()
